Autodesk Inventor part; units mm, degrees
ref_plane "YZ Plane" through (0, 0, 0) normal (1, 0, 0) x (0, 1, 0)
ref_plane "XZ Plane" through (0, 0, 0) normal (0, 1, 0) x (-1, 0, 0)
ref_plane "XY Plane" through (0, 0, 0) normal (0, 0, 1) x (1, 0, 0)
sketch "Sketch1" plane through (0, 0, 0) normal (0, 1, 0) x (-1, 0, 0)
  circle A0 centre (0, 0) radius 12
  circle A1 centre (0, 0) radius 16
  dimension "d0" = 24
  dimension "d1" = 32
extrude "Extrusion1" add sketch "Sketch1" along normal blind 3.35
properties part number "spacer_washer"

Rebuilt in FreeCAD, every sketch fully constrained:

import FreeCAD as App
import Part
import Sketcher

V = App.Vector
Q = App.Units.Quantity

doc = App.newDocument("Part")
body = doc.addObject("PartDesign::Body", "Body")

sketch1 = body.newObject("Sketcher::SketchObject", "Sketch")
sketch1.AttachmentSupport = (doc.getObject("XZ_Plane"), [""])
sketch1.MapMode = "FlatFace"
sketch1.addGeometry([
    Part.Circle(V(0, 0, 0), V(0, 0, 1), 16),
    Part.Circle(V(0, 0, 0), V(0, 0, 1), 12),
], False)
sketch1.addConstraint([
    Sketcher.Constraint("Coincident", 0, 3, -1, 1),
    Sketcher.Constraint("Coincident", 1, 3, -1, 1),
    Sketcher.Constraint("Diameter", 0, Q("32 mm")),
    Sketcher.Constraint("Diameter", 1, Q("24 mm")),
])
pad1 = body.newObject("PartDesign::Pad", "Pad")
pad1.Profile = sketch1
pad1.Length = 3.35
pad1.Reversed = True

doc.recompute()
